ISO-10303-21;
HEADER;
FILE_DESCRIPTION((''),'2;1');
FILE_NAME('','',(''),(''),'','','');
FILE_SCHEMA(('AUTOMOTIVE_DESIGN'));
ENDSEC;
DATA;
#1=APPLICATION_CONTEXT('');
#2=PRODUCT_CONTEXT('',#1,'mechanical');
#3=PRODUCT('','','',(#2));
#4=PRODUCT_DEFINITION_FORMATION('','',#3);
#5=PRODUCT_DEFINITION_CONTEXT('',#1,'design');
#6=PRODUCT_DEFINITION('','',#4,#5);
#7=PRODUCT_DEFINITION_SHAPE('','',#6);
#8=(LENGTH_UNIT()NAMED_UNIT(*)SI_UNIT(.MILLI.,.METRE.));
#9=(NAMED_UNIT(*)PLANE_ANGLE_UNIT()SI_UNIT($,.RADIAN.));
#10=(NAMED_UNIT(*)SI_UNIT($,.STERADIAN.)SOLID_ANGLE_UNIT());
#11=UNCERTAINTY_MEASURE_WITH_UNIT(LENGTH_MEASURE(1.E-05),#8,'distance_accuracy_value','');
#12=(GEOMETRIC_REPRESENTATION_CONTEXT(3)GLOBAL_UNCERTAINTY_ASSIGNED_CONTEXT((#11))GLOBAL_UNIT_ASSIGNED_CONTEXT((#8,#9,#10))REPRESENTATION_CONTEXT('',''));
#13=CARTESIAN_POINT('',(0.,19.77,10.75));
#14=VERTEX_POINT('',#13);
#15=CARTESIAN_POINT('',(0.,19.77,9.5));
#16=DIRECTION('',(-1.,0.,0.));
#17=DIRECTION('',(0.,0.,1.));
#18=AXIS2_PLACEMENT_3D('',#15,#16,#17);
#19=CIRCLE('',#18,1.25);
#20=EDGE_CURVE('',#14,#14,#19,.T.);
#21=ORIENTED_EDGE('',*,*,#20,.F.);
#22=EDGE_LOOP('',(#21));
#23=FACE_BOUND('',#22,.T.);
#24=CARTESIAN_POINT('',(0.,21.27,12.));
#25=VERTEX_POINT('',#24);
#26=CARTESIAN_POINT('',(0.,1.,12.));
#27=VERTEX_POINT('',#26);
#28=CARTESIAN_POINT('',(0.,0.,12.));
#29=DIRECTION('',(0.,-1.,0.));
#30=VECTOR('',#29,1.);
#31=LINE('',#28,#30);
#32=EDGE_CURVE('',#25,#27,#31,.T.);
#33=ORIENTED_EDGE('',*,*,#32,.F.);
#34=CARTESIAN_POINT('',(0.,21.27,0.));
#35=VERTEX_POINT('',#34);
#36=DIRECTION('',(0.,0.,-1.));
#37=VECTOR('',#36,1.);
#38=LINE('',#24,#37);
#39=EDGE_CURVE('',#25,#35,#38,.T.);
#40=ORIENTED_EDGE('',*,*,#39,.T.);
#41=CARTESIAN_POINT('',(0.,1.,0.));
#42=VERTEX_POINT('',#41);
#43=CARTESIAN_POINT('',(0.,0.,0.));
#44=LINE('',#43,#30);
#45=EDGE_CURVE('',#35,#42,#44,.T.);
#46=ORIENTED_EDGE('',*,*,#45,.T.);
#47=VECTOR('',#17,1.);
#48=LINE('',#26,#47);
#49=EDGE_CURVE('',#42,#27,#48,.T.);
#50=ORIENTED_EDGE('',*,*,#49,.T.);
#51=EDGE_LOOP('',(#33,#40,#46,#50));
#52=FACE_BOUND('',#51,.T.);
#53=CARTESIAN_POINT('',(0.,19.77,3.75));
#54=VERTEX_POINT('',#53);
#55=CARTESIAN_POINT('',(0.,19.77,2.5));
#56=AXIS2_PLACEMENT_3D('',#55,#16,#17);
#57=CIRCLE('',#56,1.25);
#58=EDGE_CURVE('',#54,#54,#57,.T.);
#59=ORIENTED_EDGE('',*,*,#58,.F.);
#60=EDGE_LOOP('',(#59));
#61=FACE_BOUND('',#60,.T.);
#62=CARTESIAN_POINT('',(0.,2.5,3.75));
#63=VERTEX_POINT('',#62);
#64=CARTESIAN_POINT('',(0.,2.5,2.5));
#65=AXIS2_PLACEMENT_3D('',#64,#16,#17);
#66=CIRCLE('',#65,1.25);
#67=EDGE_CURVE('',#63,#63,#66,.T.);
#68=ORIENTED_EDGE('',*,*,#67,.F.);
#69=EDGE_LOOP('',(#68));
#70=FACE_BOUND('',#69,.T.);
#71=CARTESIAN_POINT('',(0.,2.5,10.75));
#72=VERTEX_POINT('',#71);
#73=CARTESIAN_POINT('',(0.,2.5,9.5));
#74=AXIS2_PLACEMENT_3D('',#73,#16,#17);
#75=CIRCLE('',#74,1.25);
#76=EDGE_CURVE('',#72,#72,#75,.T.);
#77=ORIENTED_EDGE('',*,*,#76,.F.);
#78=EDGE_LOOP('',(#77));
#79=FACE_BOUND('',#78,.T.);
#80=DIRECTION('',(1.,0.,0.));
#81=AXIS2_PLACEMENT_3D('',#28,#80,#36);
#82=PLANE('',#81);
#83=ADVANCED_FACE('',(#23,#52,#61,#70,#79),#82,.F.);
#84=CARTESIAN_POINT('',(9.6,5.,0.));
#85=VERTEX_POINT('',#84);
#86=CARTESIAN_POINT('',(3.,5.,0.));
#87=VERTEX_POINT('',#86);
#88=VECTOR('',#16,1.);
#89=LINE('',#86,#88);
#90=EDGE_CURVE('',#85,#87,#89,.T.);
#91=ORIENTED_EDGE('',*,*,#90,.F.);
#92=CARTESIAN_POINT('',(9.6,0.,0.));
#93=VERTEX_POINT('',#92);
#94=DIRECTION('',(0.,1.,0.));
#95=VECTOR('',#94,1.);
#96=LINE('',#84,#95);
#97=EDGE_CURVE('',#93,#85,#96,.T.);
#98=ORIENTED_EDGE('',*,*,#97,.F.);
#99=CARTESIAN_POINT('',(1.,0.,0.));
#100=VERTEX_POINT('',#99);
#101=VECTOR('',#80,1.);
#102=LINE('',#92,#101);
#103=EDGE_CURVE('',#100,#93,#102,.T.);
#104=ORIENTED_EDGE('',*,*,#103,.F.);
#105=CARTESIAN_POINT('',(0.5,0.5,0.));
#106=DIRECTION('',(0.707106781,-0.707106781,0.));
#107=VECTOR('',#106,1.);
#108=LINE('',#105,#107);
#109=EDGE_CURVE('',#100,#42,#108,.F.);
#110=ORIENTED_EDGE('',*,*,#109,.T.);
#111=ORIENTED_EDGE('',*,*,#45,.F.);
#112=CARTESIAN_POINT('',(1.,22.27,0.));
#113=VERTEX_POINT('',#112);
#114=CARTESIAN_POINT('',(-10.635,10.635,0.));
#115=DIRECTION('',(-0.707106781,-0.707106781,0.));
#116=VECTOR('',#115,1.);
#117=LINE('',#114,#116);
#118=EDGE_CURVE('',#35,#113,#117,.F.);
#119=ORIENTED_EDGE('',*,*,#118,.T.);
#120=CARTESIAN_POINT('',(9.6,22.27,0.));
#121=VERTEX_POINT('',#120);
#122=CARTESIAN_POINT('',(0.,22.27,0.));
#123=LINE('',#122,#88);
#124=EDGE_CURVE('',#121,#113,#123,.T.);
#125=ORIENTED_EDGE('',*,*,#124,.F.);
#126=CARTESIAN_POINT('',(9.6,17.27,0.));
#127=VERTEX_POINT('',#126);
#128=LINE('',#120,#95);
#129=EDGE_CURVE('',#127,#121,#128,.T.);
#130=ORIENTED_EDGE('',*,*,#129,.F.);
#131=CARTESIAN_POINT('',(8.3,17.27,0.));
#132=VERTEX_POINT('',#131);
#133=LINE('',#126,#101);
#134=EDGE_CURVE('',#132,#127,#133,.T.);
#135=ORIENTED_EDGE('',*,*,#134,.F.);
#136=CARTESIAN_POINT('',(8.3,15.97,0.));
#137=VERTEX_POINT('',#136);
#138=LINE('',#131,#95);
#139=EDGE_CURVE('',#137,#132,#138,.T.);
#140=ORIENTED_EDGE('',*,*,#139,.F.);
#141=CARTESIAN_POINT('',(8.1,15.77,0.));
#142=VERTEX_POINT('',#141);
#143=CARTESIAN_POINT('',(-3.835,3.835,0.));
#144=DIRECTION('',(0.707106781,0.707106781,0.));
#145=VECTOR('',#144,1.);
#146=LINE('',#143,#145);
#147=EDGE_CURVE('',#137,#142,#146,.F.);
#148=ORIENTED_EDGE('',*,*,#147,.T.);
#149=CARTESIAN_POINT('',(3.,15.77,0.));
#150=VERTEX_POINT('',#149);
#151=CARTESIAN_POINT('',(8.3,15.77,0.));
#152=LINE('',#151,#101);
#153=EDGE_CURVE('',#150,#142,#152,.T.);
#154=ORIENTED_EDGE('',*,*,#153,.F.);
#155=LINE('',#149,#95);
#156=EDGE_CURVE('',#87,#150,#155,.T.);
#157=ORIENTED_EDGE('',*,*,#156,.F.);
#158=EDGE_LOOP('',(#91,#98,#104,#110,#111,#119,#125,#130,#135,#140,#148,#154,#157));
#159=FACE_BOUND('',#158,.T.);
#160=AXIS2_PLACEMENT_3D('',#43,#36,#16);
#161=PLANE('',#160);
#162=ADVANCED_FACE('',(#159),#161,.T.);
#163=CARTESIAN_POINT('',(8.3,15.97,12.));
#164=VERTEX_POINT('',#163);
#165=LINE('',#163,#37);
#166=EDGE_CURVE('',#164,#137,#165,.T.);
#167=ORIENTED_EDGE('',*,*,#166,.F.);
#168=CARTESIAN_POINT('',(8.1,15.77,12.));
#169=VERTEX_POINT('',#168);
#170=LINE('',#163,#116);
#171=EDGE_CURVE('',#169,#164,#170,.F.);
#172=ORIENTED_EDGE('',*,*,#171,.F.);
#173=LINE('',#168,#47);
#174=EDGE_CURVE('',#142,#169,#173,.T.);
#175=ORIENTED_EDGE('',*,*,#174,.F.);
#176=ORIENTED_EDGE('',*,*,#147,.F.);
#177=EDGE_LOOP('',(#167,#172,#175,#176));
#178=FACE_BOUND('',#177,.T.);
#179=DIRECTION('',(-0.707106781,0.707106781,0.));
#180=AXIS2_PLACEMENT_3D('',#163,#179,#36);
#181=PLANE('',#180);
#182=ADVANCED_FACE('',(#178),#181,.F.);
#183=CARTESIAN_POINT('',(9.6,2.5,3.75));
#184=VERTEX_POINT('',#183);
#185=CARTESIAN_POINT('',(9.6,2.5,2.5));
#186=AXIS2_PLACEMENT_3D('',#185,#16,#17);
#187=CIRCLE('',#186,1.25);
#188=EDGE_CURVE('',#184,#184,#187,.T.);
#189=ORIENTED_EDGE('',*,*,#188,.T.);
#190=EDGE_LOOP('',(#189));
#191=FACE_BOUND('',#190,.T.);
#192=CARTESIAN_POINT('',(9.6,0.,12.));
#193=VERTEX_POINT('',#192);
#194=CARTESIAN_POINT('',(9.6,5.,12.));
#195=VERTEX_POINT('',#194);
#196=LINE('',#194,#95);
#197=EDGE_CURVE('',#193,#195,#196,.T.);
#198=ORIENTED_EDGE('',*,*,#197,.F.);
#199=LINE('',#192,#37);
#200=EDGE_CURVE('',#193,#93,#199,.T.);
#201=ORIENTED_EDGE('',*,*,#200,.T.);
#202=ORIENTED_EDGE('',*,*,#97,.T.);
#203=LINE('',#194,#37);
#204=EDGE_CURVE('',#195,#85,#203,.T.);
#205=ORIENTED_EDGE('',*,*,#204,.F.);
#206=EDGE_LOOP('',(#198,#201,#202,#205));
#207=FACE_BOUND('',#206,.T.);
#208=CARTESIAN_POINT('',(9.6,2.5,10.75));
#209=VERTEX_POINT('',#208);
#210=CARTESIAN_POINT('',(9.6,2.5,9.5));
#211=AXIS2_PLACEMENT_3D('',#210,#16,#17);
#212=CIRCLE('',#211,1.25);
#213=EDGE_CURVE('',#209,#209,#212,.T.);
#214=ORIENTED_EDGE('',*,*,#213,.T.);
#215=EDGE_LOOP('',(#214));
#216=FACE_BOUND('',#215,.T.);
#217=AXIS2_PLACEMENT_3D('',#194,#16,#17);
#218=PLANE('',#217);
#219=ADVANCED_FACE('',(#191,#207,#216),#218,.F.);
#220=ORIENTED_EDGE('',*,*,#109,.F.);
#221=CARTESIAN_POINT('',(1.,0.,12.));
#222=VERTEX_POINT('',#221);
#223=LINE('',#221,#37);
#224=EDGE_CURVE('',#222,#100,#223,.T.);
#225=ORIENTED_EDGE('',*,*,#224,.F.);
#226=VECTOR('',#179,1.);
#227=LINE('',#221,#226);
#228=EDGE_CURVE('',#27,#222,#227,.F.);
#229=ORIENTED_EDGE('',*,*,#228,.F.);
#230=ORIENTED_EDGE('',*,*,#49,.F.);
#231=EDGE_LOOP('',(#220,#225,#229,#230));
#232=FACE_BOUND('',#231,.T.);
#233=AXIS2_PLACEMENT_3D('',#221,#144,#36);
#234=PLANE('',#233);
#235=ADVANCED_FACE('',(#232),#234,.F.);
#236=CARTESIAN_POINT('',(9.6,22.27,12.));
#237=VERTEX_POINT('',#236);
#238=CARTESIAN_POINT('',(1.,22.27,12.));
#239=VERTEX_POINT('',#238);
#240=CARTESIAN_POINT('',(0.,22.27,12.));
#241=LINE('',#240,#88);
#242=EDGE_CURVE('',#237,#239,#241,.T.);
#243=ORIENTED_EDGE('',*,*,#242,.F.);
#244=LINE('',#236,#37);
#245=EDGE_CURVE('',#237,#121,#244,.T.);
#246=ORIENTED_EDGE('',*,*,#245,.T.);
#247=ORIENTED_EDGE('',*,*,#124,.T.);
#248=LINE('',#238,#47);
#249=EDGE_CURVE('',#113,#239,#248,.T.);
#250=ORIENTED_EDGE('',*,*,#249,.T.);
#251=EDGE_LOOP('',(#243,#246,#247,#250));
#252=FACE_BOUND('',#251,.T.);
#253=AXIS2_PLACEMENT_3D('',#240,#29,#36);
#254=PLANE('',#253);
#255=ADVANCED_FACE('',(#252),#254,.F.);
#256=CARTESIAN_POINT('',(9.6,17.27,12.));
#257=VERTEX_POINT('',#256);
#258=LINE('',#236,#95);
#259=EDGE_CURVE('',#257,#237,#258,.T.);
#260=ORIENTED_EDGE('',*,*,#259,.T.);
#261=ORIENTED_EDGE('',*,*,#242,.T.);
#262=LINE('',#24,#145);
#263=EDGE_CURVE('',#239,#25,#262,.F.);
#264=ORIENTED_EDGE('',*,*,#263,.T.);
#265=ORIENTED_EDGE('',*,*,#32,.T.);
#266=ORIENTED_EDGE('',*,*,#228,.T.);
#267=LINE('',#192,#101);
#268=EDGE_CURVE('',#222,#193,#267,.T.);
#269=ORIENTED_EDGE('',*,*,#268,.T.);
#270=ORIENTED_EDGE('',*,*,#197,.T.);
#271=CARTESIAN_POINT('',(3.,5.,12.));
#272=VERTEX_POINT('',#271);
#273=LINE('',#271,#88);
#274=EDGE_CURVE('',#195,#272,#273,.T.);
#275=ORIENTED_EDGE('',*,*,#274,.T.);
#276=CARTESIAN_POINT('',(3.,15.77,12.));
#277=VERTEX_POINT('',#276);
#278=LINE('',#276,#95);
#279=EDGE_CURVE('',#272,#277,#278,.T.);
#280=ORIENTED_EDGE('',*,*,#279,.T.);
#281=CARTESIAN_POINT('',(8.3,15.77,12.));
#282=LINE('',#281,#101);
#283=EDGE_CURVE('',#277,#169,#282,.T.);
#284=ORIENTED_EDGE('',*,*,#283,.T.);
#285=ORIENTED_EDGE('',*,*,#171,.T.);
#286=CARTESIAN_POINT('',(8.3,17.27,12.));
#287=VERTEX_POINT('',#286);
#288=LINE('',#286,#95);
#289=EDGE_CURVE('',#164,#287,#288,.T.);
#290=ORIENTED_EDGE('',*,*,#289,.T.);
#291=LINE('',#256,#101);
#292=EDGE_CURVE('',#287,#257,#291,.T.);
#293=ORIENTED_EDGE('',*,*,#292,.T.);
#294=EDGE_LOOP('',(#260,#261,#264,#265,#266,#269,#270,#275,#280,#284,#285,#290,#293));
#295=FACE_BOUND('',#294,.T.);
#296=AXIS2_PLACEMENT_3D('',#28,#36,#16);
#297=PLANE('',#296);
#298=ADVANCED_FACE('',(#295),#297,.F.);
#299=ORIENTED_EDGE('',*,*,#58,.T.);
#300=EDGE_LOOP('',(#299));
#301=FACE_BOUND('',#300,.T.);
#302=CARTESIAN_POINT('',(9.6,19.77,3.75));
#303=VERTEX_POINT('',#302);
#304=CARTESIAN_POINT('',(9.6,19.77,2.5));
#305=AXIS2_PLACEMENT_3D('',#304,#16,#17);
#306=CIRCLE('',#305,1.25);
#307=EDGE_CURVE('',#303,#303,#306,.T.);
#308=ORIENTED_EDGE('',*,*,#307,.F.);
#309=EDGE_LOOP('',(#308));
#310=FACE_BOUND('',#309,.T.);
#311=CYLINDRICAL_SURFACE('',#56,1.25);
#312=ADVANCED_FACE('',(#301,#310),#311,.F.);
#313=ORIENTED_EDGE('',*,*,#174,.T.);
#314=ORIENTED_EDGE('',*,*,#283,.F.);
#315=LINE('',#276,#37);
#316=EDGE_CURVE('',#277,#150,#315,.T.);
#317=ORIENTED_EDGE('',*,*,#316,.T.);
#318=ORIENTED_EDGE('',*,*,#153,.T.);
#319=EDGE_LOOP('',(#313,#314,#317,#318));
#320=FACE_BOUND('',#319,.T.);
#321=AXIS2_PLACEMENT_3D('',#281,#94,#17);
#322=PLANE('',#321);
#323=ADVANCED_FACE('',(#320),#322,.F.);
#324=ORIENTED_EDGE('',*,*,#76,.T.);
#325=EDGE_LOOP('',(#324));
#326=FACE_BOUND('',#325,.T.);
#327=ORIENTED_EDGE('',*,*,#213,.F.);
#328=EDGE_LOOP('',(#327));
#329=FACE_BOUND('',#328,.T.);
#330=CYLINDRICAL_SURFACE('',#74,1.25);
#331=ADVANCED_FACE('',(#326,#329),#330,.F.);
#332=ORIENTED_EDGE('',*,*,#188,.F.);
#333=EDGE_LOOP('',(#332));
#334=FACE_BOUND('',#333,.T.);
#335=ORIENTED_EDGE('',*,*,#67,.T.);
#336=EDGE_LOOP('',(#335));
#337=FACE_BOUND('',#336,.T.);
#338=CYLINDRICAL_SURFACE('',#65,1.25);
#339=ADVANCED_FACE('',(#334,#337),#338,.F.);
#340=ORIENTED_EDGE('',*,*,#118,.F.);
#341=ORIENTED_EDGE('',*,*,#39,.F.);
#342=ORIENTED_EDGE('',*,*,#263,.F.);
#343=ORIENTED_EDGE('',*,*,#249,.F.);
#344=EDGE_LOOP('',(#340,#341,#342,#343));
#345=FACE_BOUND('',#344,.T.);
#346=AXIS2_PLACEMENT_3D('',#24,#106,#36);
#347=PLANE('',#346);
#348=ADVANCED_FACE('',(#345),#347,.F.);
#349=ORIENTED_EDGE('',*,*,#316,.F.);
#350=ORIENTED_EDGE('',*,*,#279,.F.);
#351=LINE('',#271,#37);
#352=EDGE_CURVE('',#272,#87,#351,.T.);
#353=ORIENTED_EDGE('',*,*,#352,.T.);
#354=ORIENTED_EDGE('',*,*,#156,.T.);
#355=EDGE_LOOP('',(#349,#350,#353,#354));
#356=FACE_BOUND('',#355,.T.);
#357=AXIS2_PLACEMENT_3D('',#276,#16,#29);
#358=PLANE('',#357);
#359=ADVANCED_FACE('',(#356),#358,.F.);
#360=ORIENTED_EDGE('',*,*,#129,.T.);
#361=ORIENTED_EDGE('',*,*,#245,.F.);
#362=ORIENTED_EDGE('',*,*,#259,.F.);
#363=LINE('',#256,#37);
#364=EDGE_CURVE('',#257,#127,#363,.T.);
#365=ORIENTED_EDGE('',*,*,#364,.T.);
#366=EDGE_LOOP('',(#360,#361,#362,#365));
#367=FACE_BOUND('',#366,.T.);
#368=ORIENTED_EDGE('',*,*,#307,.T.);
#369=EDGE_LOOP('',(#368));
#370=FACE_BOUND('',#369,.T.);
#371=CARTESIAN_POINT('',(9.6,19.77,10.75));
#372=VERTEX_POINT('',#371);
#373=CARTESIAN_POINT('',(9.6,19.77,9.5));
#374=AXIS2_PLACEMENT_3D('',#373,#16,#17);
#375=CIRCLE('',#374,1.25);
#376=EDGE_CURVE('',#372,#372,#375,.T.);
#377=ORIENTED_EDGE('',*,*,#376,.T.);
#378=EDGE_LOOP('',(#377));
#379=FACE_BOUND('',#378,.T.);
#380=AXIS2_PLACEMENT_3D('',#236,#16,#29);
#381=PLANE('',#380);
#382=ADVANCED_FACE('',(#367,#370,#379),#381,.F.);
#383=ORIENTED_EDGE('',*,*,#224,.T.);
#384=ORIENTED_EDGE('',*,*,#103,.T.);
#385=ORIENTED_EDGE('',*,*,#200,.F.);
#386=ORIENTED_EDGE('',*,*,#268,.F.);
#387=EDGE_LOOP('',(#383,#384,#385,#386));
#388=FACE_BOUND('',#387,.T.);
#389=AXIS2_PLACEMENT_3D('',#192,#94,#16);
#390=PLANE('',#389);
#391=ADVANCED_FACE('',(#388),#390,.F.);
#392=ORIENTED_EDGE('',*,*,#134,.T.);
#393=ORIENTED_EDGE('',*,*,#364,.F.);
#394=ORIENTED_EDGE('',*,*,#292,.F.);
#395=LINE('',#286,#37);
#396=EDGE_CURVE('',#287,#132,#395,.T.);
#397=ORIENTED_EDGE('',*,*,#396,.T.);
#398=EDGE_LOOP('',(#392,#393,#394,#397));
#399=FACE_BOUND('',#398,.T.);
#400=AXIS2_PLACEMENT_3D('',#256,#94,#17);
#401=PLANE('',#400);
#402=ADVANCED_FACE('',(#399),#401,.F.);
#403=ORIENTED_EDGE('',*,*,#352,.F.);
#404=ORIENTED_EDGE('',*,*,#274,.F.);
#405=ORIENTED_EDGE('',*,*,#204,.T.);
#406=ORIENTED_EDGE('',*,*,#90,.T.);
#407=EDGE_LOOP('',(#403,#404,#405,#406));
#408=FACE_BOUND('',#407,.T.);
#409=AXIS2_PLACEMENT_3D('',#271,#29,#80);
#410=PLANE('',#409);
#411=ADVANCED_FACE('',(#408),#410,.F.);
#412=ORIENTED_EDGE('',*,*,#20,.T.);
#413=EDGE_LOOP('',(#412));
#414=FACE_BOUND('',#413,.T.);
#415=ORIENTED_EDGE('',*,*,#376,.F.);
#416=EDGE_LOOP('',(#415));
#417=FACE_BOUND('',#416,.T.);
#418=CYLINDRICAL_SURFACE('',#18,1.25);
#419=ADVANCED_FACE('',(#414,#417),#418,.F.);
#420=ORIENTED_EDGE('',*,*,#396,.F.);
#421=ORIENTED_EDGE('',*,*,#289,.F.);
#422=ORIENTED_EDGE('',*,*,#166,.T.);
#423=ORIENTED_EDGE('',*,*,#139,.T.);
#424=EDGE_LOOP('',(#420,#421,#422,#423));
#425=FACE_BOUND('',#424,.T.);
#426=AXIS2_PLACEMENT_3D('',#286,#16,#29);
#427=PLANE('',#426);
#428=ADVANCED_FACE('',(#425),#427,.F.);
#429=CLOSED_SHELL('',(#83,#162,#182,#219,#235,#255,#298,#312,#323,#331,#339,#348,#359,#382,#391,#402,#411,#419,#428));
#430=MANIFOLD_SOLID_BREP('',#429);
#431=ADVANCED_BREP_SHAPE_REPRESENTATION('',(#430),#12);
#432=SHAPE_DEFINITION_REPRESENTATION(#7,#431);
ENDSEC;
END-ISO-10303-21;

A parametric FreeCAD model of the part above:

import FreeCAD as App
import Part
import Sketcher

V = App.Vector


def edges_at(feature, points):
    """Names of the edges that pass closest to the given points."""
    edges = feature.Shape.Edges
    near = lambda p: min(range(len(edges)), key=lambda i: edges[i].distToShape(Part.Vertex(*p))[0])
    return sorted({f"Edge{near(p) + 1}" for p in points})


def add_polygon(sketch, points):
    """Adds a closed chain of lines whose ends are joined by coincident constraints."""
    first, n = sketch.GeometryCount, len(points)
    for a, b in zip(points, points[1:] + points[:1]):
        sketch.addGeometry(Part.LineSegment(App.Vector(*a, 0), App.Vector(*b, 0)), False)
    for i in range(n):
        sketch.addConstraint(Sketcher.Constraint("Coincident", first + i, 2, first + (i + 1) % n, 1))

doc = App.newDocument("Part")
body = doc.addObject("PartDesign::Body", "Body")

sketch1 = doc.addObject("Sketcher::SketchObject", "Sketch")
body.addObject(sketch1)
sketch1.AttachmentSupport = (doc.XY_Plane, [""])
sketch1.MapMode = "FlatFace"
add_polygon(sketch1, [(0, 22.27), (0, 0), (9.6, 0), (9.6, 5), (3, 5), (3, 15.77), (8.3, 15.77), (8.3, 17.27), (9.6, 17.27), (9.6, 22.27)])
sketch1.addConstraint([
    Sketcher.Constraint("Vertical", 0),
    Sketcher.Constraint("Horizontal", 1),
    Sketcher.Constraint("Vertical", 2),
    Sketcher.Constraint("Horizontal", 3),
    Sketcher.Constraint("Vertical", 4),
    Sketcher.Constraint("Horizontal", 5),
    Sketcher.Constraint("Vertical", 6),
    Sketcher.Constraint("Horizontal", 7),
    Sketcher.Constraint("Vertical", 8),
    Sketcher.Constraint("Horizontal", 9),
    Sketcher.Constraint("Coincident", 0, 2, -1, 1),
    Sketcher.Constraint("Vertical", 2, 2, 7, 2),
    Sketcher.Constraint("Equal", 2, 8),
    Sketcher.Constraint("DistanceY", 2, 1, 2, 2, 5.0),
    Sketcher.Constraint("DistanceX", 1, 1, 1, 2, 9.6),
    Sketcher.Constraint("DistanceX", 3, 2, 3, 1, 6.6),
    Sketcher.Constraint("DistanceX", 5, 1, 5, 2, 5.3),
    Sketcher.Constraint("DistanceY", 6, 1, 6, 2, 1.5),
    Sketcher.Constraint("DistanceY", 0, 2, 0, 1, 22.27),
])
pad1 = doc.addObject("PartDesign::Pad", "Pad")
body.addObject(pad1)
pad1.Profile = sketch1
pad1.Length = 12
doc.recompute()

chamfer = doc.addObject("PartDesign::Chamfer", "Chamfer")
body.addObject(chamfer)
chamfer.Base = (pad1, edges_at(pad1, [(8.3, 15.77, 6)]))
chamfer.Size = 0.2

sketch2 = doc.addObject("Sketcher::SketchObject", "Sketch001")
body.addObject(sketch2)
sketch2.AttachmentSupport = (doc.YZ_Plane, [""])
sketch2.MapMode = "FlatFace"
sketch2.addGeometry([
    Part.Circle(V(2.5, 2.5, 0), V(0, 0, 1), 1.25),
    Part.Circle(V(2.5, 9.5, 0), V(0, 0, 1), 1.25),
    Part.Circle(V(19.77, 9.5, 0), V(0, 0, 1), 1.25),
    Part.Circle(V(19.77, 2.5, 0), V(0, 0, 1), 1.25),
], False)
sketch2.addConstraint([
    Sketcher.Constraint("Equal", 0, 1),
    Sketcher.Constraint("Equal", 1, 2),
    Sketcher.Constraint("Equal", 2, 3),
    Sketcher.Constraint("Horizontal", 1, 3, 2, 3),
    Sketcher.Constraint("Horizontal", 0, 3, 3, 3),
    Sketcher.Constraint("Vertical", 0, 3, 1, 3),
    Sketcher.Constraint("Vertical", 2, 3, 3, 3),
    Sketcher.Constraint("Diameter", 0, 2.5),
    Sketcher.Constraint("DistanceY", 0, 3, 1, 3, 7.0),
    Sketcher.Constraint("DistanceX", -1, 1, 0, 3, 2.5),
    Sketcher.Constraint("DistanceY", -1, 1, 0, 3, 2.5),
    Sketcher.Constraint("DistanceX", -1, 1, 2, 3, 19.77),
])
doc.recompute()
hole = doc.addObject("PartDesign::Hole", "Hole")
body.addObject(hole)
hole.Profile = sketch2
hole.ThreadType = "None"
hole.Diameter = 2.5
hole.DepthType = "ThroughAll"
hole.Reversed = True
doc.recompute()

chamfer2 = doc.addObject("PartDesign::Chamfer", "Chamfer001")
body.addObject(chamfer2)
chamfer2.Base = (hole, edges_at(hole, [(0, 0, 6), (0, 22.27, 6)]))
chamfer2.Size = 1

doc.recompute()
